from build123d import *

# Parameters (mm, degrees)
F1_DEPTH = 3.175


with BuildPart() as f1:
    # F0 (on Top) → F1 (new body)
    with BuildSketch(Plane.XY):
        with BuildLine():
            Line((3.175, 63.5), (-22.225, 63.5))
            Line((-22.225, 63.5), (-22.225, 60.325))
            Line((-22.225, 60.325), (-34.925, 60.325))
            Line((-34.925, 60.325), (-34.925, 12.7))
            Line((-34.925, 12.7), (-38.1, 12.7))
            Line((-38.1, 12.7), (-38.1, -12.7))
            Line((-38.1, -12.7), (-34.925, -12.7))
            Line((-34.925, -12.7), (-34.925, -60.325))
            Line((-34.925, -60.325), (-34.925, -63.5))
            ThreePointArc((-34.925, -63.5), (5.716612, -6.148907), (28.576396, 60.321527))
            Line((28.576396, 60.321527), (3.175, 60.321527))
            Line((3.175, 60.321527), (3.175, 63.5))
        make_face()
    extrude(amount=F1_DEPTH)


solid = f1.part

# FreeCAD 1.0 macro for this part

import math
import FreeCAD as App
import Part
import Sketcher
Q = App.Units.Quantity

doc = App.newDocument("Part")
params = doc.addObject("Spreadsheet::Sheet", "Params")
for row, (alias, value) in enumerate([
    ("sketch1_width", "1 in"),
    ("sketch1_height", "2 in"),
    ("sketch1_width2", "0.5 in"),
    ("sketch1_radius", "9.7339999 in"),
    ("sketch1_width3", "0.125 in"),
    ("pad1_length", "0.125 in"),
], start=1):
    params.set(f"A{row}", alias)
    params.set(f"B{row}", "=" + value)
    params.setAlias(f"B{row}", alias)

body = doc.addObject("PartDesign::Body", "Body")

# Sketch on XY plane
sketch1 = doc.addObject("Sketcher::SketchObject", "Sketch")
body.addObject(sketch1)
sketch1.AttachmentSupport = (doc.XY_Plane, [""])
sketch1.MapMode = "FlatFace"
sketch1.addGeometry(Part.LineSegment(App.Vector(3.2, 63.5, 0), App.Vector(-22.2, 63.5, 0)), False)
sketch1.addGeometry(Part.LineSegment(App.Vector(-22.2, 63.5, 0), App.Vector(-22.2, 60.3, 0)), False)
sketch1.addGeometry(Part.LineSegment(App.Vector(-22.2, 60.3, 0), App.Vector(-34.9, 60.3, 0)), False)
sketch1.addGeometry(Part.LineSegment(App.Vector(-34.9, 60.3, 0), App.Vector(-34.9, 12.7, 0)), False)
sketch1.addGeometry(Part.LineSegment(App.Vector(-34.9, 12.7, 0), App.Vector(-38.1, 12.7, 0)), False)
sketch1.addGeometry(Part.LineSegment(App.Vector(-38.1, 12.7, 0), App.Vector(-38.1, -12.7, 0)), False)
sketch1.addGeometry(Part.LineSegment(App.Vector(-38.1, -12.7, 0), App.Vector(-34.9, -12.7, 0)), False)
sketch1.addGeometry(Part.LineSegment(App.Vector(-34.9, -12.7, 0), App.Vector(-34.9, -63.5, 0)), False)
sketch1.addGeometry(Part.ArcOfCircle(Part.Circle(App.Vector(-214.3, 106.7, 0), App.Vector(0, 0, 1), 247.2), math.radians(-43), math.radians(-11)), False)
sketch1.addGeometry(Part.LineSegment(App.Vector(28.6, 60.3, 0), App.Vector(3.2, 60.3, 0)), False)
sketch1.addGeometry(Part.LineSegment(App.Vector(3.2, 60.3, 0), App.Vector(3.2, 63.5, 0)), False)
sketch1.addConstraint(Sketcher.Constraint("Coincident", 0, 2, 1, 1))
sketch1.addConstraint(Sketcher.Constraint("Coincident", 1, 2, 2, 1))
sketch1.addConstraint(Sketcher.Constraint("Coincident", 2, 2, 3, 1))
sketch1.addConstraint(Sketcher.Constraint("Coincident", 3, 2, 4, 1))
sketch1.addConstraint(Sketcher.Constraint("Coincident", 4, 2, 5, 1))
sketch1.addConstraint(Sketcher.Constraint("Coincident", 5, 2, 6, 1))
sketch1.addConstraint(Sketcher.Constraint("Coincident", 6, 2, 7, 1))
sketch1.addConstraint(Sketcher.Constraint("Coincident", 7, 2, 8, 1))
sketch1.addConstraint(Sketcher.Constraint("Coincident", 8, 2, 9, 1))
sketch1.addConstraint(Sketcher.Constraint("Coincident", 9, 2, 10, 1))
sketch1.addConstraint(Sketcher.Constraint("Coincident", 10, 2, 0, 1))
sketch1.addConstraint(Sketcher.Constraint("Horizontal", 0))
sketch1.addConstraint(Sketcher.Constraint("Vertical", 1))
sketch1.addConstraint(Sketcher.Constraint("Horizontal", 2))
sketch1.addConstraint(Sketcher.Constraint("Vertical", 3))
sketch1.addConstraint(Sketcher.Constraint("Horizontal", 4))
sketch1.addConstraint(Sketcher.Constraint("Vertical", 5))
sketch1.addConstraint(Sketcher.Constraint("Horizontal", 6))
sketch1.addConstraint(Sketcher.Constraint("Vertical", 7))
sketch1.addConstraint(Sketcher.Constraint("Horizontal", 9))
sketch1.addConstraint(Sketcher.Constraint("Vertical", 10))
sketch1.addConstraint(Sketcher.Constraint("Symmetric", 3, 2, 6, 2, -1))
sketch1.addConstraint(Sketcher.Constraint("Equal", 6, 1))
sketch1.addConstraint(Sketcher.Constraint("Equal", 0, 5))
sketch1.addConstraint(Sketcher.Constraint("DistanceX", 0, 2, 0, 1, Q("1 in")))
sketch1.addConstraint(Sketcher.Constraint("DistanceY", 7, 2, 7, 1, Q("2 in")))
sketch1.addConstraint(Sketcher.Constraint("DistanceX", 2, 2, 2, 1, Q("0.5 in")))
sketch1.addConstraint(Sketcher.Constraint("Radius", 8, Q("9.7339999 in")))
sketch1.addConstraint(Sketcher.Constraint("DistanceY", 3, 2, 0, 2, Q("2 in")))
sketch1.addConstraint(Sketcher.Constraint("DistanceX", 4, 2, -1, 1, Q("1.5 in")))
sketch1.addConstraint(Sketcher.Constraint("DistanceX", 4, 2, 4, 1, Q("0.125 in")))
sketch1.addConstraint(Sketcher.Constraint("DistanceX", 9, 2, 9, 1, 25.401396))
sketch1.addConstraint(Sketcher.Constraint("DistanceY", 10, 1, 10, 2, 3.178473))
sketch1.setExpression("Constraints[24]", "Params.sketch1_width")
sketch1.setExpression("Constraints[25]", "Params.sketch1_height")
sketch1.setExpression("Constraints[26]", "Params.sketch1_width2")
sketch1.setExpression("Constraints[27]", "Params.sketch1_radius")
sketch1.setExpression("Constraints[30]", "Params.sketch1_width3")
pad1 = doc.addObject("PartDesign::Pad", "Pad")
body.addObject(pad1)
pad1.Profile = sketch1
pad1.setExpression("Length", "Params.pad1_length")

doc.recompute()
